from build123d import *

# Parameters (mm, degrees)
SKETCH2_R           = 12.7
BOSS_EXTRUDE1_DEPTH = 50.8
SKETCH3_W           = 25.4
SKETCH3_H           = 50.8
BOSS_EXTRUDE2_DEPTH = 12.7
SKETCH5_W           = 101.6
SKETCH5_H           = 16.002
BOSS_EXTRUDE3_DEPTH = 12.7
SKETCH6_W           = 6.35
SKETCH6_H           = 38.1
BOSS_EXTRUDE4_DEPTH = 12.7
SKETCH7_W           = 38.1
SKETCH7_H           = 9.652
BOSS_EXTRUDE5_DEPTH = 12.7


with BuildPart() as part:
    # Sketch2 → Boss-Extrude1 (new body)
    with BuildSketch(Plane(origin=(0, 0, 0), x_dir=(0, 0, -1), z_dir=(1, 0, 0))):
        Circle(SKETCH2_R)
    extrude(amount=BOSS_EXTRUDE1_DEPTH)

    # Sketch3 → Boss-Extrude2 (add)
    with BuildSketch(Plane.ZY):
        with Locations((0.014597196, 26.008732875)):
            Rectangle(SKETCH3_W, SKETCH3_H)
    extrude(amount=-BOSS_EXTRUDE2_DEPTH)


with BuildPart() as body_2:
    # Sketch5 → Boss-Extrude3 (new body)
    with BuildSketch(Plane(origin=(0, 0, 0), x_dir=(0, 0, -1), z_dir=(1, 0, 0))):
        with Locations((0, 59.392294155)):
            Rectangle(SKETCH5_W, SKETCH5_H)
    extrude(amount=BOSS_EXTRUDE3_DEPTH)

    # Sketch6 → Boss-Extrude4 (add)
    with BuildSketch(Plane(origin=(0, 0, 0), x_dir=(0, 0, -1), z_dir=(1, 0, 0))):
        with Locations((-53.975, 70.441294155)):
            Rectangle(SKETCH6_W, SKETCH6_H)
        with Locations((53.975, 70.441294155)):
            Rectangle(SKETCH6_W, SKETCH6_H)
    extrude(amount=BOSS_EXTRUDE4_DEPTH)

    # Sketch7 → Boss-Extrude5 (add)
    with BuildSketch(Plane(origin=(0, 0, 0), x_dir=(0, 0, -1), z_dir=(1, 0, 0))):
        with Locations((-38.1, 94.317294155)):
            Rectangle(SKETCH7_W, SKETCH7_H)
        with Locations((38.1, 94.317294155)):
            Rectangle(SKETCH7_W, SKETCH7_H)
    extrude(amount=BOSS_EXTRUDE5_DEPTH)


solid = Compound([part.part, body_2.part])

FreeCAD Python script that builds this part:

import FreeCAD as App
import Part
import Sketcher
from FreeCAD import Vector
Q = App.Units.Quantity

doc = App.newDocument("Part")
body = doc.addObject("PartDesign::Body", "Body")

sketch1 = doc.addObject("Sketcher::SketchObject", "Sketch")
body.addObject(sketch1)
sketch1.AttachmentSupport = (doc.YZ_Plane, [""])
sketch1.MapMode = "FlatFace"
sketch1.addGeometry(Part.Circle(Vector(0, 0, 0), Vector(0, 0, 1), 13), False)
sketch1.addConstraint([
    Sketcher.Constraint("Coincident", 0, 3, -1, 1),
    Sketcher.Constraint("Diameter", 0, Q("1 in")),
])
pad1 = doc.addObject("PartDesign::Pad", "Pad")
body.addObject(pad1)
pad1.Profile = sketch1
pad1.Length = Q("2 in")

sketch2 = doc.addObject("Sketcher::SketchObject", "Sketch001")
body.addObject(sketch2)
sketch2.AttachmentSupport = (doc.YZ_Plane, [""])
sketch2.MapMode = "FlatFace"
sketch2.addGeometry([
    Part.LineSegment(Vector(51, -13, 0), Vector(1, -13, 0)),
    Part.LineSegment(Vector(1, -13, 0), Vector(1, 13, 0)),
    Part.LineSegment(Vector(1, 13, 0), Vector(51, 13, 0)),
    Part.LineSegment(Vector(51, 13, 0), Vector(51, -13, 0)),
], False)
sketch2.addConstraint([
    Sketcher.Constraint("Coincident", 0, 2, 1, 1),
    Sketcher.Constraint("Coincident", 1, 2, 2, 1),
    Sketcher.Constraint("Coincident", 2, 2, 3, 1),
    Sketcher.Constraint("Coincident", 3, 2, 0, 1),
    Sketcher.Constraint("Horizontal", 0),
    Sketcher.Constraint("Vertical", 1),
    Sketcher.Constraint("Horizontal", 2),
    Sketcher.Constraint("Vertical", 3),
    Sketcher.Constraint("DistanceX", 0, 2, 0, 1, Q("2 in")),
    Sketcher.Constraint("DistanceY", 1, 1, 1, 2, Q("1 in")),
    Sketcher.Constraint("DistanceX", -1, 1, 0, 2, Q("0.608733 mm")),
    Sketcher.Constraint("DistanceY", 0, 2, -1, 1, Q("12.685403 mm")),
])
pad2 = doc.addObject("PartDesign::Pad", "Pad001")
body.addObject(pad2)
pad2.Profile = sketch2
pad2.Length = Q("0.5 in")
body2 = doc.addObject("PartDesign::Body", "Body001")

sketch3 = doc.addObject("Sketcher::SketchObject", "Sketch002")
body2.addObject(sketch3)
sketch3.AttachmentSupport = (doc.getObject("YZ_Plane001"), [""])
sketch3.MapMode = "FlatFace"
sketch3.addGeometry([
    Part.LineSegment(Vector(67, 51, 0), Vector(51, 51, 0)),
    Part.LineSegment(Vector(51, 51, 0), Vector(51, -51, 0)),
    Part.LineSegment(Vector(51, -51, 0), Vector(67, -51, 0)),
    Part.LineSegment(Vector(67, -51, 0), Vector(67, 51, 0)),
], False)
sketch3.addConstraint([
    Sketcher.Constraint("Coincident", 0, 2, 1, 1),
    Sketcher.Constraint("Coincident", 1, 2, 2, 1),
    Sketcher.Constraint("Coincident", 2, 2, 3, 1),
    Sketcher.Constraint("Coincident", 3, 2, 0, 1),
    Sketcher.Constraint("Horizontal", 0),
    Sketcher.Constraint("Vertical", 1),
    Sketcher.Constraint("Horizontal", 2),
    Sketcher.Constraint("Vertical", 3),
    Sketcher.Constraint("DistanceY", 1, 2, 1, 1, Q("4 in")),
    Sketcher.Constraint("DistanceY", -1, 1, 0, 2, Q("2 in")),
    Sketcher.Constraint("DistanceX", 0, 2, 0, 1, Q("0.63 in")),
    Sketcher.Constraint("DistanceX", -1, 1, 0, 2, Q("51.391294 mm")),
])
pad3 = doc.addObject("PartDesign::Pad", "Pad002")
body2.addObject(pad3)
pad3.Profile = sketch3
pad3.Length = Q("0.5 in")

sketch4 = doc.addObject("Sketcher::SketchObject", "Sketch003")
body2.addObject(sketch4)
sketch4.AttachmentSupport = (doc.getObject("YZ_Plane001"), [""])
sketch4.MapMode = "FlatFace"
sketch4.addGeometry([
    Part.LineSegment(Vector(89, 57, 0), Vector(51, 57, 0)),
    Part.LineSegment(Vector(51, 57, 0), Vector(51, 51, 0)),
    Part.LineSegment(Vector(51, 51, 0), Vector(89, 51, 0)),
    Part.LineSegment(Vector(89, 51, 0), Vector(89, 57, 0)),
    Part.LineSegment(Vector(89, -51, 0), Vector(51, -51, 0)),
    Part.LineSegment(Vector(51, -51, 0), Vector(51, -57, 0)),
    Part.LineSegment(Vector(51, -57, 0), Vector(89, -57, 0)),
    Part.LineSegment(Vector(89, -57, 0), Vector(89, -51, 0)),
], False)
sketch4.addConstraint([
    Sketcher.Constraint("Coincident", 0, 2, 1, 1),
    Sketcher.Constraint("Coincident", 1, 2, 2, 1),
    Sketcher.Constraint("Coincident", 2, 2, 3, 1),
    Sketcher.Constraint("Coincident", 3, 2, 0, 1),
    Sketcher.Constraint("Coincident", 4, 2, 5, 1),
    Sketcher.Constraint("Coincident", 5, 2, 6, 1),
    Sketcher.Constraint("Coincident", 6, 2, 7, 1),
    Sketcher.Constraint("Coincident", 7, 2, 4, 1),
    Sketcher.Constraint("Horizontal", 0),
    Sketcher.Constraint("Vertical", 1),
    Sketcher.Constraint("Horizontal", 2),
    Sketcher.Constraint("Vertical", 3),
    Sketcher.Constraint("Horizontal", 4),
    Sketcher.Constraint("Vertical", 5),
    Sketcher.Constraint("Horizontal", 6),
    Sketcher.Constraint("Vertical", 7),
    Sketcher.Constraint("Symmetric", 1, 2, 4, 2, -1),
    Sketcher.Constraint("Symmetric", 3, 2, 6, 2, -1),
    Sketcher.Constraint("DistanceX", 0, 2, 0, 1, Q("1.5 in")),
    Sketcher.Constraint("DistanceY", -1, 1, 1, 2, Q("2 in")),
    Sketcher.Constraint("DistanceY", 1, 2, 1, 1, Q("0.25 in")),
    Sketcher.Constraint("DistanceX", -1, 1, 0, 2, Q("51.391294 mm")),
])
pad4 = doc.addObject("PartDesign::Pad", "Pad003")
body2.addObject(pad4)
pad4.Profile = sketch4
pad4.Length = Q("0.5 in")

sketch5 = doc.addObject("Sketcher::SketchObject", "Sketch004")
body2.addObject(sketch5)
sketch5.AttachmentSupport = (doc.getObject("YZ_Plane001"), [""])
sketch5.MapMode = "FlatFace"
sketch5.addGeometry([
    Part.LineSegment(Vector(99, 57, 0), Vector(89, 57, 0)),
    Part.LineSegment(Vector(89, 57, 0), Vector(89, 19, 0)),
    Part.LineSegment(Vector(89, 19, 0), Vector(99, 19, 0)),
    Part.LineSegment(Vector(99, 19, 0), Vector(99, 57, 0)),
    Part.LineSegment(Vector(99, -19, 0), Vector(89, -19, 0)),
    Part.LineSegment(Vector(89, -19, 0), Vector(89, -57, 0)),
    Part.LineSegment(Vector(89, -57, 0), Vector(99, -57, 0)),
    Part.LineSegment(Vector(99, -57, 0), Vector(99, -19, 0)),
], False)
sketch5.addConstraint([
    Sketcher.Constraint("Coincident", 0, 2, 1, 1),
    Sketcher.Constraint("Coincident", 1, 2, 2, 1),
    Sketcher.Constraint("Coincident", 2, 2, 3, 1),
    Sketcher.Constraint("Coincident", 3, 2, 0, 1),
    Sketcher.Constraint("Coincident", 4, 2, 5, 1),
    Sketcher.Constraint("Coincident", 5, 2, 6, 1),
    Sketcher.Constraint("Coincident", 6, 2, 7, 1),
    Sketcher.Constraint("Coincident", 7, 2, 4, 1),
    Sketcher.Constraint("Horizontal", 0),
    Sketcher.Constraint("Vertical", 1),
    Sketcher.Constraint("Horizontal", 2),
    Sketcher.Constraint("Vertical", 3),
    Sketcher.Constraint("Horizontal", 4),
    Sketcher.Constraint("Vertical", 5),
    Sketcher.Constraint("Horizontal", 6),
    Sketcher.Constraint("Vertical", 7),
    Sketcher.Constraint("Symmetric", 1, 2, 4, 2, -1),
    Sketcher.Constraint("Symmetric", 3, 2, 6, 2, -1),
    Sketcher.Constraint("DistanceY", 1, 2, 1, 1, Q("1.5 in")),
    Sketcher.Constraint("DistanceY", 4, 2, 0, 2, Q("3 in")),
    Sketcher.Constraint("DistanceX", 0, 2, 0, 1, Q("0.38 in")),
    Sketcher.Constraint("DistanceX", -1, 1, 0, 2, Q("89.491294 mm")),
])
pad5 = doc.addObject("PartDesign::Pad", "Pad004")
body2.addObject(pad5)
pad5.Profile = sketch5
pad5.Length = Q("0.5 in")

doc.recompute()
